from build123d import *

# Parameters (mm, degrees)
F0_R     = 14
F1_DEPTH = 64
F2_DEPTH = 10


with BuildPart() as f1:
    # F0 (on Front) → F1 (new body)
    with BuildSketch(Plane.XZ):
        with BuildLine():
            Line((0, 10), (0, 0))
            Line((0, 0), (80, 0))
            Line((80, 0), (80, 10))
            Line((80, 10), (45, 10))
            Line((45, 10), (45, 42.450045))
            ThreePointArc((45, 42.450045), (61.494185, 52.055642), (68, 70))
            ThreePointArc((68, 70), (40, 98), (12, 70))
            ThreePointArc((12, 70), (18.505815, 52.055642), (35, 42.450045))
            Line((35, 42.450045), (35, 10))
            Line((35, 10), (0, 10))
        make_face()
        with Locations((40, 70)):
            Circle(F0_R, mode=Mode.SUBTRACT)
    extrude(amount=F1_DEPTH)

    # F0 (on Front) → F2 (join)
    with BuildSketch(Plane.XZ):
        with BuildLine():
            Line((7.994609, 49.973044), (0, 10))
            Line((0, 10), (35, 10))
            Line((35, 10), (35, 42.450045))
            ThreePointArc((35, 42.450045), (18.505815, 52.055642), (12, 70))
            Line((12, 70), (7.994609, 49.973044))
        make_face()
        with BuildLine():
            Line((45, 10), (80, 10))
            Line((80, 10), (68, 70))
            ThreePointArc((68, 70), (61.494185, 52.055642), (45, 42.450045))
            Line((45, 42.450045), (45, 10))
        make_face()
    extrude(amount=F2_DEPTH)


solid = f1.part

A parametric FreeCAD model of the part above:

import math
import FreeCAD as App
import Part
import Sketcher

doc = App.newDocument("Part")
body = doc.addObject("PartDesign::Body", "Body")

# Sketch on XZ plane
sketch1 = body.newObject("Sketcher::SketchObject", "Sketch")
sketch1.AttachmentSupport = (doc.getObject("XZ_Plane"), [""])
sketch1.MapMode = "FlatFace"
sketch1.addGeometry([
    Part.LineSegment(App.Vector(0, 10, 0), App.Vector(0, 0, 0)),  # 0
    Part.LineSegment(App.Vector(0, 0, 0), App.Vector(80, 0, 0)),  # 1
    Part.LineSegment(App.Vector(80, 0, 0), App.Vector(80, 10, 0)),  # 2
    Part.LineSegment(App.Vector(80, 10, 0), App.Vector(45, 10, 0)),  # 3
    Part.LineSegment(App.Vector(45, 10, 0), App.Vector(45, 42, 0)),  # 4
    Part.ArcOfCircle(Part.Circle(App.Vector(40, 70, 0), App.Vector(0, 0, 1), 28), math.radians(-80), math.radians(0)),  # 5
    Part.ArcOfCircle(Part.Circle(App.Vector(40, 70, 0), App.Vector(0, 0, 1), 28), math.radians(0), math.radians(180)),  # 6
    Part.ArcOfCircle(Part.Circle(App.Vector(40, 70, 0), App.Vector(0, 0, 1), 28), math.radians(-180), math.radians(-100)),  # 7
    Part.LineSegment(App.Vector(35, 42, 0), App.Vector(35, 10, 0)),  # 8
    Part.LineSegment(App.Vector(35, 10, 0), App.Vector(0, 10, 0)),  # 9
    Part.Circle(App.Vector(40, 70, 0), App.Vector(0, 0, 1), 14),  # 10
], False)
sketch1.addConstraint([
    Sketcher.Constraint("Coincident", 0, 2, 1, 1),
    Sketcher.Constraint("Coincident", 1, 2, 2, 1),
    Sketcher.Constraint("Coincident", 2, 2, 3, 1),
    Sketcher.Constraint("Coincident", 3, 2, 4, 1),
    Sketcher.Constraint("Coincident", 4, 2, 5, 1),
    Sketcher.Constraint("Tangent", 5, 2, 6, 1),
    Sketcher.Constraint("Tangent", 6, 2, 7, 1),
    Sketcher.Constraint("Coincident", 7, 2, 8, 1),
    Sketcher.Constraint("Coincident", 8, 2, 9, 1),
    Sketcher.Constraint("Coincident", 9, 2, 0, 1),
    Sketcher.Constraint("Vertical", 0),
    Sketcher.Constraint("Horizontal", 1),
    Sketcher.Constraint("Vertical", 2),
    Sketcher.Constraint("Horizontal", 3),
    Sketcher.Constraint("Vertical", 4),
    Sketcher.Constraint("Vertical", 8),
    Sketcher.Constraint("Horizontal", 9),
    Sketcher.Constraint("Coincident", 0, 2, -1, 1),
    Sketcher.Constraint("Coincident", 10, 3, 5, 3),
    Sketcher.Constraint("Equal", 5, 7),
    Sketcher.Constraint("Horizontal", 10, 3, 5, 2),
    Sketcher.Constraint("Horizontal", 5, 2, 6, 2),
    Sketcher.Constraint("Horizontal", 4, 2, 7, 2),
    Sketcher.Constraint("Horizontal", 3, 2, 8, 2),
    Sketcher.Constraint("Equal", 3, 9),
    Sketcher.Constraint("Diameter", 10, 28.0),
    Sketcher.Constraint("Radius", 6, 28.0),
    Sketcher.Constraint("DistanceX", 1, 1, 1, 2, 80.0),
    Sketcher.Constraint("DistanceX", 3, 2, 3, 1, 35.0),
    Sketcher.Constraint("DistanceY", 0, 2, 0, 1, 10.0),
    Sketcher.Constraint("DistanceY", -1, 1, 5, 3, 70.000002),
    Sketcher.Constraint("DistanceX", -1, 1, 10, 3, 40.0),
])
pad1 = body.newObject("PartDesign::Pad", "Pad")
pad1.Profile = sketch1
pad1.Length = 64

# Sketch on XZ plane
sketch2 = body.newObject("Sketcher::SketchObject", "Sketch001")
sketch2.AttachmentSupport = (doc.getObject("XZ_Plane"), [""])
sketch2.MapMode = "FlatFace"
sketch2.addGeometry([
    Part.LineSegment(App.Vector(8, 50, 0), App.Vector(0, 10, 0)),  # 0
    Part.LineSegment(App.Vector(0, 10, 0), App.Vector(35, 10, 0)),  # 1
    Part.LineSegment(App.Vector(35, 10, 0), App.Vector(35, 42, 0)),  # 2
    Part.ArcOfCircle(Part.Circle(App.Vector(40, 70, 0), App.Vector(0, 0, 1), 28), math.radians(-180), math.radians(-100)),  # 3
    Part.LineSegment(App.Vector(12, 70, 0), App.Vector(8, 50, 0)),  # 4
    Part.LineSegment(App.Vector(45, 10, 0), App.Vector(80, 10, 0)),  # 5
    Part.LineSegment(App.Vector(80, 10, 0), App.Vector(68, 70, 0)),  # 6
    Part.ArcOfCircle(Part.Circle(App.Vector(40, 70, 0), App.Vector(0, 0, 1), 28), math.radians(-80), math.radians(0)),  # 7
    Part.LineSegment(App.Vector(45, 42, 0), App.Vector(45, 10, 0)),  # 8
], False)
sketch2.addConstraint([
    Sketcher.Constraint("Coincident", 0, 2, 1, 1),
    Sketcher.Constraint("Coincident", 1, 2, 2, 1),
    Sketcher.Constraint("Coincident", 2, 2, 3, 2),
    Sketcher.Constraint("Coincident", 3, 1, 4, 1),
    Sketcher.Constraint("Coincident", 4, 2, 0, 1),
    Sketcher.Constraint("Coincident", 5, 2, 6, 1),
    Sketcher.Constraint("Coincident", 6, 2, 7, 2),
    Sketcher.Constraint("Coincident", 7, 1, 8, 1),
    Sketcher.Constraint("Coincident", 8, 2, 5, 1),
    Sketcher.Constraint("Horizontal", 1),
    Sketcher.Constraint("Vertical", 2),
    Sketcher.Constraint("Horizontal", 5),
    Sketcher.Constraint("Vertical", 8),
    Sketcher.Constraint("Coincident", 7, 3, 3, 3),
    Sketcher.Constraint("Equal", 3, 7),
    Sketcher.Constraint("PointOnObject", 0, 2, -2),
    Sketcher.Constraint("Parallel", 0, 4),
    Sketcher.Constraint("Horizontal", 7, 3, 3, 1),
    Sketcher.Constraint("Horizontal", 1, 2, 5, 2),
    Sketcher.Constraint("Horizontal", 3, 1, 6, 2),
    Sketcher.Constraint("Horizontal", 2, 2, 7, 1),
    Sketcher.Constraint("Equal", 1, 5),
    Sketcher.Constraint("DistanceX", 1, 1, 1, 2, 35.0),
    Sketcher.Constraint("DistanceY", -1, 1, 3, 3, 70.000002),
    Sketcher.Constraint("DistanceY", -1, 1, 0, 2, 10.0),
    Sketcher.Constraint("DistanceX", -1, 1, 3, 1, 12.0),
    Sketcher.Constraint("DistanceX", -1, 1, 5, 2, 80.0),
    Sketcher.Constraint("DistanceY", 2, 2, 4, 2, 7.522999),
])
pad2 = body.newObject("PartDesign::Pad", "Pad001")
pad2.Profile = sketch2
pad2.Length = 10

doc.recompute()
